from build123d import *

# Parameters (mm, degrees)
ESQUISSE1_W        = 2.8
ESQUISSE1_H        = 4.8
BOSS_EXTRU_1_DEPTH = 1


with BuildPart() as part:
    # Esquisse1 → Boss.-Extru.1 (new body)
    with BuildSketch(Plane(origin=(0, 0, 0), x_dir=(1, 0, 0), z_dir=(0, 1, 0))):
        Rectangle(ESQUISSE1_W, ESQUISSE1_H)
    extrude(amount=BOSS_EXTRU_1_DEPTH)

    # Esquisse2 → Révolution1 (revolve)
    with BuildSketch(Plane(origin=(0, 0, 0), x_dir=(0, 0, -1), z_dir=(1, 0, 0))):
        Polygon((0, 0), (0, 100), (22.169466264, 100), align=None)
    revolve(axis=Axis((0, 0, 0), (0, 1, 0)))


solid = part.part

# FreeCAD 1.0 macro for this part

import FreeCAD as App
import Part
import Sketcher
from FreeCAD import Vector
Q = App.Units.Quantity

doc = App.newDocument("Part")
params = doc.addObject("Spreadsheet::Sheet", "Params")
for row, (alias, value) in enumerate([
    ("sketch1_width", "2.8 mm"),
    ("sketch1_height", "4.8 mm"),
    ("pad1_length", "1 mm"),
    ("sketch2_width", "100 mm"),
    ("revolution_angle", "360 deg"),
], start=1):
    params.set(f"A{row}", alias)
    params.set(f"B{row}", "=" + value)
    params.setAlias(f"B{row}", alias)

body = doc.addObject("PartDesign::Body", "Body")

# Sketch on XZ plane
sketch1 = body.newObject("Sketcher::SketchObject", "Sketch")
sketch1.AttachmentSupport = (doc.getObject("XZ_Plane"), [""])
sketch1.MapMode = "FlatFace"
sketch1.addGeometry([
    Part.LineSegment(Vector(-1.4, -2.4, 0), Vector(-1.4, 2.4, 0)),
    Part.LineSegment(Vector(-1.4, 2.4, 0), Vector(1.4, 2.4, 0)),
    Part.LineSegment(Vector(1.4, 2.4, 0), Vector(1.4, -2.4, 0)),
    Part.LineSegment(Vector(1.4, -2.4, 0), Vector(-1.4, -2.4, 0)),
], False)
sketch1.addConstraint([
    Sketcher.Constraint("Coincident", 0, 2, 1, 1),
    Sketcher.Constraint("Coincident", 1, 2, 2, 1),
    Sketcher.Constraint("Coincident", 2, 2, 3, 1),
    Sketcher.Constraint("Coincident", 3, 2, 0, 1),
    Sketcher.Constraint("Vertical", 0),
    Sketcher.Constraint("Horizontal", 1),
    Sketcher.Constraint("Vertical", 2),
    Sketcher.Constraint("Horizontal", 3),
    Sketcher.Constraint("Symmetric", 0, 2, 2, 2, -1, 1),
    Sketcher.Constraint("DistanceX", 1, 1, 1, 2, Q("2.8 mm")),
    Sketcher.Constraint("DistanceY", 0, 1, 0, 2, Q("4.8 mm")),
])
sketch1.setExpression("Constraints[9]", "Params.sketch1_width")
sketch1.setExpression("Constraints[10]", "Params.sketch1_height")
pad1 = body.newObject("PartDesign::Pad", "Pad")
pad1.Profile = sketch1
pad1.setExpression("Length", "Params.pad1_length")
pad1.Reversed = True

# Sketch on YZ plane
sketch2 = body.newObject("Sketcher::SketchObject", "Sketch001")
sketch2.AttachmentSupport = (doc.getObject("YZ_Plane"), [""])
sketch2.MapMode = "FlatFace"
sketch2.addGeometry([
    Part.LineSegment(Vector(100, 0, 0), Vector(0, 0, 0)),
    Part.LineSegment(Vector(0, 0, 0), Vector(100, -22, 0)),
    Part.LineSegment(Vector(100, -22, 0), Vector(100, 0, 0)),
], False)
sketch2.addConstraint([
    Sketcher.Constraint("Coincident", 0, 2, 1, 1),
    Sketcher.Constraint("Coincident", 1, 2, 2, 1),
    Sketcher.Constraint("Coincident", 2, 2, 0, 1),
    Sketcher.Constraint("Horizontal", 0),
    Sketcher.Constraint("Vertical", 2),
    Sketcher.Constraint("Coincident", 0, 2, -1, 1),
    Sketcher.Constraint("DistanceX", 0, 2, 0, 1, Q("100 mm")),
    Sketcher.Constraint("Angle", 1, Q("-12.5 deg")),
])
sketch2.setExpression("Constraints[6]", "Params.sketch2_width")
revolution = body.newObject("PartDesign::Revolution", "Revolution")
revolution.Profile = sketch2
revolution.ReferenceAxis = (sketch2, ["H_Axis"])
revolution.setExpression("Angle", "Params.revolution_angle")

doc.recompute()
